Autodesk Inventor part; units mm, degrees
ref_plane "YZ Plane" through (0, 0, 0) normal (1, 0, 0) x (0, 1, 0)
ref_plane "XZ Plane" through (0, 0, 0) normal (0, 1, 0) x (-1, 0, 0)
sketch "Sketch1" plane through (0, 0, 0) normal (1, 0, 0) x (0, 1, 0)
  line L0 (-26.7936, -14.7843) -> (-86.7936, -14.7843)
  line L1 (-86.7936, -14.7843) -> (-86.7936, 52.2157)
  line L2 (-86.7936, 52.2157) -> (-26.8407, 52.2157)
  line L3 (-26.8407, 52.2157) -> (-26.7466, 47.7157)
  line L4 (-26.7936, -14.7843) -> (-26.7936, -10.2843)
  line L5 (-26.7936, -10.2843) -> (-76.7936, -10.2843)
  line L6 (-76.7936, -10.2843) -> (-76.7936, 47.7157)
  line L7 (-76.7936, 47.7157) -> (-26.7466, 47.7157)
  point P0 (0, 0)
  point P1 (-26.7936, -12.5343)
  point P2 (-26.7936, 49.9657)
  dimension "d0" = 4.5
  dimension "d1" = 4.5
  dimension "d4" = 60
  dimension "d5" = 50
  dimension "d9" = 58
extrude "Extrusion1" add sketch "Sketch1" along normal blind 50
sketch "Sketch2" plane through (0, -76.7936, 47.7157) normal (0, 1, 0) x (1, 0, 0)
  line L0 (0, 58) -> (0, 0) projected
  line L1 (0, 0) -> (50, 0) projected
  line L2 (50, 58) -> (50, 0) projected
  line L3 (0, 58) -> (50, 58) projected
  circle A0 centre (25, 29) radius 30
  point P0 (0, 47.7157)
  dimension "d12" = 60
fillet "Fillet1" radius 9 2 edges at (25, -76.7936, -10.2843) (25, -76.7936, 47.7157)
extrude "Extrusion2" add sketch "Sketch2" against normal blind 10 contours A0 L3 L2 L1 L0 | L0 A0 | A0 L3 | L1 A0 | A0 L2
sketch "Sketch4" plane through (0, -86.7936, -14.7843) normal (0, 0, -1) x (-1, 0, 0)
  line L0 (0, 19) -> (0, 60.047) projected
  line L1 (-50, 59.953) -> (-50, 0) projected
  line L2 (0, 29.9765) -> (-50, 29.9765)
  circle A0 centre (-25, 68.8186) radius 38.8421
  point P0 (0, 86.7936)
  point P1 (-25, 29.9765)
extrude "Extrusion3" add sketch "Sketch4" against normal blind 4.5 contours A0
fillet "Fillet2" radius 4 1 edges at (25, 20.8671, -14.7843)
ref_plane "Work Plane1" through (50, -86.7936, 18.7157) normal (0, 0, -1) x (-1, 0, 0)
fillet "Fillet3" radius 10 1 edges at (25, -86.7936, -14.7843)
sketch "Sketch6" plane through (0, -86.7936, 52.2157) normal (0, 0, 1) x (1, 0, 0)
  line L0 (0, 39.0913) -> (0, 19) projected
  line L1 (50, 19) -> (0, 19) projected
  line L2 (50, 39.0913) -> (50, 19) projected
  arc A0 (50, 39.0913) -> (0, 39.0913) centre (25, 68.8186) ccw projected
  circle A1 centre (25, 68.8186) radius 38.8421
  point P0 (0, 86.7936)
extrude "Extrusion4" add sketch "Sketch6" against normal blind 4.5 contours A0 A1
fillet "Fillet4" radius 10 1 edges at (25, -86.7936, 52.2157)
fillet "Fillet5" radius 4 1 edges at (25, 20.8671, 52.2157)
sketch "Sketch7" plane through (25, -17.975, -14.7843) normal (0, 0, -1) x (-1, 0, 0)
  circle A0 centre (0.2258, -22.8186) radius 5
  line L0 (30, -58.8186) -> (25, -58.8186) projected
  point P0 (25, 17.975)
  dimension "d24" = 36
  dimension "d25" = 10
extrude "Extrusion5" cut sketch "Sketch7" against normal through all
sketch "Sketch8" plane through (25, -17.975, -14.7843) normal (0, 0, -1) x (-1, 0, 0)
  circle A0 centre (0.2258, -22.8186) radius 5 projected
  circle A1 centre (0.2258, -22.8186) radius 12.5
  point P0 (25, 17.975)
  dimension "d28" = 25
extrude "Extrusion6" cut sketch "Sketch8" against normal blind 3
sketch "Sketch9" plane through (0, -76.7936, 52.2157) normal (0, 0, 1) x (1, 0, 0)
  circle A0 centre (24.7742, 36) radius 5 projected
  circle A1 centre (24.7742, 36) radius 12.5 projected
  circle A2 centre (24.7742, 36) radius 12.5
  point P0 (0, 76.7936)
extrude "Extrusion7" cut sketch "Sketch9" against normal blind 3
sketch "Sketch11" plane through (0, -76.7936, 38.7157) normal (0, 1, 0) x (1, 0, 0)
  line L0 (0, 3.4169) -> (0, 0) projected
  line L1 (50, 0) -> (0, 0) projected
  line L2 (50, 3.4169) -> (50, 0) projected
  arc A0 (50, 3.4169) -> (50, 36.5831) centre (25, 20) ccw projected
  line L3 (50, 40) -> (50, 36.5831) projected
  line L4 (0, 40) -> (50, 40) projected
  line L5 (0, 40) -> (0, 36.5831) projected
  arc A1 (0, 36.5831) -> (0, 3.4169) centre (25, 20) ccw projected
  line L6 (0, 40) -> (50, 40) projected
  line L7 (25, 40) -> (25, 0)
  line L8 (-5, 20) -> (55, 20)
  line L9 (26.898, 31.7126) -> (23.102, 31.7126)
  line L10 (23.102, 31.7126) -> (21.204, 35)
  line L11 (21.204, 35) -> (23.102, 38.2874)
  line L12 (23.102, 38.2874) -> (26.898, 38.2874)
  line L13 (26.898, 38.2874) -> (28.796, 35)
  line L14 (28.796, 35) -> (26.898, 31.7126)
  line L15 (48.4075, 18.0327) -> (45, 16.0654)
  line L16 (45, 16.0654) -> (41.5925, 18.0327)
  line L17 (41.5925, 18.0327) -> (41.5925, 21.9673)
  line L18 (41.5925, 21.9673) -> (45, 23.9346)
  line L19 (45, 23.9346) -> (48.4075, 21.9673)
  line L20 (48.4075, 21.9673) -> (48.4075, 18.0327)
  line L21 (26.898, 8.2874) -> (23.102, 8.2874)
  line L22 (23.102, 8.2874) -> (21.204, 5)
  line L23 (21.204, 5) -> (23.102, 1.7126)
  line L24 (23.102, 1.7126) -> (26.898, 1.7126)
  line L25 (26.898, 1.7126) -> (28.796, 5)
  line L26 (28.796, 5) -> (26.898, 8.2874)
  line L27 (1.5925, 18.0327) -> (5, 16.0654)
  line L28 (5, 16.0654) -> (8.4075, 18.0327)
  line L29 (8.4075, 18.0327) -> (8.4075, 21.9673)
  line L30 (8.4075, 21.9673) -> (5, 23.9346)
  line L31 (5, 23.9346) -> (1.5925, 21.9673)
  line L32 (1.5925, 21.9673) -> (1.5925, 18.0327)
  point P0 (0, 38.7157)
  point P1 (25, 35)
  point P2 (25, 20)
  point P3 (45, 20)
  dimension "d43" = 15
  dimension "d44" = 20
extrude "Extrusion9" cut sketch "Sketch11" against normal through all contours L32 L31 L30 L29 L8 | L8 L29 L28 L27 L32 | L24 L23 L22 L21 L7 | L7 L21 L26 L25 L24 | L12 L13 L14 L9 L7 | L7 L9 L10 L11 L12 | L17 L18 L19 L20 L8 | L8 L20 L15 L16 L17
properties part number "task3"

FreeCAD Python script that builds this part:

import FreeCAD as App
import Part
import Sketcher

V = App.Vector
Q = App.Units.Quantity


def edges_at(feature, points):
    """Names of the edges that pass closest to the given points."""
    edges = feature.Shape.Edges
    near = lambda p: min(range(len(edges)), key=lambda i: edges[i].distToShape(Part.Vertex(*p))[0])
    return sorted({f"Edge{near(p) + 1}" for p in points})

doc = App.newDocument("Part")
body = doc.addObject("PartDesign::Body", "Body")

# Sketch on YZ plane
sketch1 = body.newObject("Sketcher::SketchObject", "Sketch")
sketch1.AttachmentSupport = (doc.getObject("YZ_Plane"), [""])
sketch1.MapMode = "FlatFace"
sketch1.addGeometry([
    Part.LineSegment(V(-86.8, -14.8, 0), V(-26.8, -14.8, 0)),  # 0
    Part.LineSegment(V(-26.8, -14.8, 0), V(-26.8, -10.3, 0)),  # 1
    Part.LineSegment(V(-26.8, -10.3, 0), V(-76.8, -10.3, 0)),  # 2
    Part.LineSegment(V(-76.8, -10.3, 0), V(-76.8, 47.7, 0)),  # 3
    Part.LineSegment(V(-76.8, 47.7, 0), V(-26.7, 47.7, 0)),  # 4
    Part.LineSegment(V(-26.7, 47.7, 0), V(-26.8, 52.2, 0)),  # 5
    Part.LineSegment(V(-26.8, 52.2, 0), V(-86.8, 52.2, 0)),  # 6
    Part.LineSegment(V(-86.8, 52.2, 0), V(-86.8, -14.8, 0)),  # 7
], False)
sketch1.addConstraint([
    Sketcher.Constraint("Coincident", 0, 2, 1, 1),
    Sketcher.Constraint("Coincident", 1, 2, 2, 1),
    Sketcher.Constraint("Coincident", 2, 2, 3, 1),
    Sketcher.Constraint("Coincident", 3, 2, 4, 1),
    Sketcher.Constraint("Coincident", 4, 2, 5, 1),
    Sketcher.Constraint("Coincident", 5, 2, 6, 1),
    Sketcher.Constraint("Coincident", 6, 2, 7, 1),
    Sketcher.Constraint("Coincident", 7, 2, 0, 1),
    Sketcher.Constraint("Horizontal", 0),
    Sketcher.Constraint("Vertical", 1),
    Sketcher.Constraint("Horizontal", 2),
    Sketcher.Constraint("Vertical", 3),
    Sketcher.Constraint("Horizontal", 4),
    Sketcher.Constraint("Horizontal", 6),
    Sketcher.Constraint("Vertical", 7),
    Sketcher.Constraint("DistanceX", 0, 1, 0, 2, 60.0),
    Sketcher.Constraint("DistanceX", 2, 2, 2, 1, 50.0),
    Sketcher.Constraint("DistanceY", 3, 1, 3, 2, 58.0),
    Sketcher.Constraint("DistanceY", 1, 1, 1, 2, 4.5),
    Sketcher.Constraint("DistanceY", 4, 2, 5, 2, 4.5),
    Sketcher.Constraint("DistanceX", 4, 1, 4, 2, 50.047),
    Sketcher.Constraint("DistanceX", 6, 2, 6, 1, 59.953),
    Sketcher.Constraint("DistanceX", 0, 2, -1, 1, 26.7936),
    Sketcher.Constraint("DistanceY", 0, 2, -1, 1, 14.7843),
])
pad1 = body.newObject("PartDesign::Pad", "Pad")
pad1.Profile = sketch1
pad1.Length = 50
doc.recompute()

fillet = body.newObject("PartDesign::Fillet", "Fillet")
fillet.Base = (pad1, edges_at(pad1, [(25, -76.794, -10.284), (25, -76.794, 47.716)]))
fillet.Radius = 9

# Sketch on XZ plane
sketch2 = body.newObject("Sketcher::SketchObject", "Sketch001")
sketch2.AttachmentSupport = (doc.getObject("XZ_Plane"), [""])
sketch2.MapMode = "FlatFace"
sketch2.AttachmentOffset = App.Placement(V(0, 0, 76.7936), App.Rotation())
sketch2.addGeometry(Part.Circle(V(25, 19, 0), V(0, 0, 1), 30), False)
sketch2.addConstraint([
    Sketcher.Constraint("Diameter", 0, 60.0),
    Sketcher.Constraint("DistanceX", -1, 1, 0, 3, 25.0),
    Sketcher.Constraint("DistanceY", -1, 1, 0, 3, 18.7157),
])
pad2 = body.newObject("PartDesign::Pad", "Pad001")
pad2.Profile = sketch2
pad2.Length = 10

# Sketch on XY plane
sketch3 = body.newObject("Sketcher::SketchObject", "Sketch002")
sketch3.AttachmentSupport = (doc.getObject("XY_Plane"), [""])
sketch3.MapMode = "FlatFace"
sketch3.AttachmentOffset = App.Placement(V(0, 0, -14.7843), App.Rotation())
sketch3.addGeometry(Part.Circle(V(25, -18, 0), V(0, 0, 1), 39), False)
sketch3.addConstraint([
    Sketcher.Constraint("DistanceX", -1, 1, 0, 3, 25.0),
    Sketcher.Constraint("Diameter", 0, 77.6842),
    Sketcher.Constraint("DistanceY", 0, 3, -1, 1, 17.975),
])
pad3 = body.newObject("PartDesign::Pad", "Pad002")
pad3.Profile = sketch3
pad3.Length = 4.5
doc.recompute()

fillet2 = body.newObject("PartDesign::Fillet", "Fillet001")
fillet2.Base = (pad3, edges_at(pad3, [(25, 20.867, -14.784)]))
fillet2.Radius = 4
doc.recompute()

fillet3 = body.newObject("PartDesign::Fillet", "Fillet002")
fillet3.Base = (fillet2, edges_at(fillet2, [(25, -86.794, -14.784)]))
fillet3.Radius = 10

# Sketch on XY plane
sketch4 = body.newObject("Sketcher::SketchObject", "Sketch003")
sketch4.AttachmentSupport = (doc.getObject("XY_Plane"), [""])
sketch4.MapMode = "FlatFace"
sketch4.AttachmentOffset = App.Placement(V(0, 0, 52.2157), App.Rotation())
sketch4.addGeometry(Part.Circle(V(25, -18, 0), V(0, 0, 1), 39), False)
sketch4.addConstraint([
    Sketcher.Constraint("DistanceX", -1, 1, 0, 3, 25.0),
    Sketcher.Constraint("Diameter", 0, 77.6842),
    Sketcher.Constraint("DistanceY", 0, 3, -1, 1, 17.975),
])
pad4 = body.newObject("PartDesign::Pad", "Pad003")
pad4.Profile = sketch4
pad4.Length = 4.5
pad4.Reversed = True
doc.recompute()

fillet4 = body.newObject("PartDesign::Fillet", "Fillet003")
fillet4.Base = (pad4, edges_at(pad4, [(25, -86.794, 52.216)]))
fillet4.Radius = 10
doc.recompute()

fillet5 = body.newObject("PartDesign::Fillet", "Fillet004")
fillet5.Base = (fillet4, edges_at(fillet4, [(25, 20.867, 52.216)]))
fillet5.Radius = 4

# Sketch on XY plane
sketch5 = body.newObject("Sketcher::SketchObject", "Sketch004")
sketch5.AttachmentSupport = (doc.getObject("XY_Plane"), [""])
sketch5.MapMode = "FlatFace"
sketch5.AttachmentOffset = App.Placement(V(0, 0, -14.7843), App.Rotation())
sketch5.addGeometry(Part.Circle(V(25, -41, 0), V(0, 0, 1), 5), False)
sketch5.addConstraint([
    Sketcher.Constraint("Diameter", 0, 10.0),
    Sketcher.Constraint("DistanceX", -1, 1, 0, 3, 24.7742),
    Sketcher.Constraint("DistanceY", 0, 3, -1, 1, 40.7936),
])
pocket1 = body.newObject("PartDesign::Pocket", "Pocket")
pocket1.Profile = sketch5
pocket1.Type = "ThroughAll"
pocket1.Reversed = True

# Sketch on XY plane
sketch6 = body.newObject("Sketcher::SketchObject", "Sketch005")
sketch6.AttachmentSupport = (doc.getObject("XY_Plane"), [""])
sketch6.MapMode = "FlatFace"
sketch6.AttachmentOffset = App.Placement(V(0, 0, -14.7843), App.Rotation())
sketch6.addGeometry([
    Part.Circle(V(25, -41, 0), V(0, 0, 1), 12),
    Part.Circle(V(25, -41, 0), V(0, 0, 1), 5),
], False)
sketch6.addConstraint([
    Sketcher.Constraint("Coincident", 1, 3, 0, 3),
    Sketcher.Constraint("Diameter", 0, 25.0),
    Sketcher.Constraint("Diameter", 1, 10.0),
    Sketcher.Constraint("DistanceX", -1, 1, 0, 3, 24.7742),
    Sketcher.Constraint("DistanceY", 0, 3, -1, 1, 40.7936),
])
pocket2 = body.newObject("PartDesign::Pocket", "Pocket001")
pocket2.Profile = sketch6
pocket2.Length = 3
pocket2.Reversed = True

# Sketch on XY plane
sketch7 = body.newObject("Sketcher::SketchObject", "Sketch006")
sketch7.AttachmentSupport = (doc.getObject("XY_Plane"), [""])
sketch7.MapMode = "FlatFace"
sketch7.AttachmentOffset = App.Placement(V(0, 0, 52.2157), App.Rotation())
sketch7.addGeometry([
    Part.Circle(V(25, -41, 0), V(0, 0, 1), 12),
    Part.Circle(V(25, -41, 0), V(0, 0, 1), 5),
], False)
sketch7.addConstraint([
    Sketcher.Constraint("Coincident", 1, 3, 0, 3),
    Sketcher.Constraint("Diameter", 0, 25.0),
    Sketcher.Constraint("Diameter", 1, 10.0),
    Sketcher.Constraint("DistanceX", -1, 1, 0, 3, 24.7742),
    Sketcher.Constraint("DistanceY", 0, 3, -1, 1, 40.7936),
])
pocket3 = body.newObject("PartDesign::Pocket", "Pocket002")
pocket3.Profile = sketch7
pocket3.Length = 3

# Sketch on XZ plane
sketch8 = body.newObject("Sketcher::SketchObject", "Sketch007")
sketch8.AttachmentSupport = (doc.getObject("XZ_Plane"), [""])
sketch8.MapMode = "FlatFace"
sketch8.AttachmentOffset = App.Placement(V(0, 0, 76.7936), App.Rotation())
sketch8.addGeometry([
    Part.LineSegment(V(1.6, 16.7, 0), V(1.6, 20.7, 0)),  # 0
    Part.LineSegment(V(1.6, 20.7, 0), V(5, 22.7, 0)),  # 1
    Part.LineSegment(V(5, 22.7, 0), V(8.4, 20.7, 0)),  # 2
    Part.LineSegment(V(8.4, 20.7, 0), V(8.4, 16.7, 0)),  # 3
    Part.LineSegment(V(8.4, 16.7, 0), V(5, 14.8, 0)),  # 4
    Part.LineSegment(V(5, 14.8, 0), V(1.6, 16.7, 0)),  # 5
    Part.LineSegment(V(23.1, 37, 0), V(26.9, 37, 0)),  # 6
    Part.LineSegment(V(26.9, 37, 0), V(28.8, 33.7, 0)),  # 7
    Part.LineSegment(V(28.8, 33.7, 0), V(26.9, 30.4, 0)),  # 8
    Part.LineSegment(V(26.9, 30.4, 0), V(23.1, 30.4, 0)),  # 9
    Part.LineSegment(V(23.1, 30.4, 0), V(21.2, 33.7, 0)),  # 10
    Part.LineSegment(V(21.2, 33.7, 0), V(23.1, 37, 0)),  # 11
    Part.LineSegment(V(26.9, 0.4, 0), V(23.1, 0.4, 0)),  # 12
    Part.LineSegment(V(23.1, 0.4, 0), V(21.2, 3.7, 0)),  # 13
    Part.LineSegment(V(21.2, 3.7, 0), V(23.1, 7, 0)),  # 14
    Part.LineSegment(V(23.1, 7, 0), V(26.9, 7, 0)),  # 15
    Part.LineSegment(V(26.9, 7, 0), V(28.8, 3.7, 0)),  # 16
    Part.LineSegment(V(28.8, 3.7, 0), V(26.9, 0.4, 0)),  # 17
    Part.LineSegment(V(41.6, 16.7, 0), V(41.6, 20.7, 0)),  # 18
    Part.LineSegment(V(41.6, 20.7, 0), V(45, 22.7, 0)),  # 19
    Part.LineSegment(V(45, 22.7, 0), V(48.4, 20.7, 0)),  # 20
    Part.LineSegment(V(48.4, 20.7, 0), V(48.4, 16.7, 0)),  # 21
    Part.LineSegment(V(48.4, 16.7, 0), V(45, 14.8, 0)),  # 22
    Part.LineSegment(V(45, 14.8, 0), V(41.6, 16.7, 0)),  # 23
], False)
sketch8.addConstraint([
    Sketcher.Constraint("Coincident", 0, 2, 1, 1),
    Sketcher.Constraint("Coincident", 1, 2, 2, 1),
    Sketcher.Constraint("Coincident", 2, 2, 3, 1),
    Sketcher.Constraint("Coincident", 3, 2, 4, 1),
    Sketcher.Constraint("Coincident", 4, 2, 5, 1),
    Sketcher.Constraint("Coincident", 5, 2, 0, 1),
    Sketcher.Constraint("Coincident", 6, 2, 7, 1),
    Sketcher.Constraint("Coincident", 7, 2, 8, 1),
    Sketcher.Constraint("Coincident", 8, 2, 9, 1),
    Sketcher.Constraint("Coincident", 9, 2, 10, 1),
    Sketcher.Constraint("Coincident", 10, 2, 11, 1),
    Sketcher.Constraint("Coincident", 11, 2, 6, 1),
    Sketcher.Constraint("Coincident", 12, 2, 13, 1),
    Sketcher.Constraint("Coincident", 13, 2, 14, 1),
    Sketcher.Constraint("Coincident", 14, 2, 15, 1),
    Sketcher.Constraint("Coincident", 15, 2, 16, 1),
    Sketcher.Constraint("Coincident", 16, 2, 17, 1),
    Sketcher.Constraint("Coincident", 17, 2, 12, 1),
    Sketcher.Constraint("Coincident", 18, 2, 19, 1),
    Sketcher.Constraint("Coincident", 19, 2, 20, 1),
    Sketcher.Constraint("Coincident", 20, 2, 21, 1),
    Sketcher.Constraint("Coincident", 21, 2, 22, 1),
    Sketcher.Constraint("Coincident", 22, 2, 23, 1),
    Sketcher.Constraint("Coincident", 23, 2, 18, 1),
    Sketcher.Constraint("Vertical", 0),
    Sketcher.Constraint("Vertical", 3),
    Sketcher.Constraint("Horizontal", 6),
    Sketcher.Constraint("Horizontal", 9),
    Sketcher.Constraint("Horizontal", 12),
    Sketcher.Constraint("Horizontal", 15),
    Sketcher.Constraint("Vertical", 18),
    Sketcher.Constraint("Vertical", 21),
    Sketcher.Constraint("Parallel", 1, 4),
    Sketcher.Constraint("Parallel", 2, 5),
    Sketcher.Constraint("Perpendicular", 4, 7),
    Sketcher.Constraint("Perpendicular", 5, 8),
    Sketcher.Constraint("Parallel", 7, 10),
    Sketcher.Constraint("Parallel", 8, 11),
    Sketcher.Constraint("Parallel", 10, 13),
    Sketcher.Constraint("Parallel", 11, 14),
    Sketcher.Constraint("Parallel", 13, 16),
    Sketcher.Constraint("Parallel", 14, 17),
    Sketcher.Constraint("Perpendicular", 16, 19),
    Sketcher.Constraint("Perpendicular", 17, 20),
    Sketcher.Constraint("Parallel", 19, 22),
    Sketcher.Constraint("Parallel", 20, 23),
    Sketcher.Constraint("Horizontal", 0, 2, 2, 2),
    Sketcher.Constraint("Horizontal", 3, 2, 5, 2),
    Sketcher.Constraint("Horizontal", 7, 2, 10, 2),
    Sketcher.Constraint("Horizontal", 13, 2, 16, 2),
    Sketcher.Constraint("Horizontal", 2, 2, 18, 2),
    Sketcher.Constraint("Horizontal", 1, 2, 19, 2),
    Sketcher.Constraint("Horizontal", 18, 2, 20, 2),
    Sketcher.Constraint("Horizontal", 5, 2, 21, 2),
    Sketcher.Constraint("Horizontal", 4, 2, 22, 2),
    Sketcher.Constraint("Vertical", 1, 2, 4, 2),
    Sketcher.Constraint("Vertical", 6, 2, 8, 2),
    Sketcher.Constraint("Vertical", 11, 2, 12, 2),
    Sketcher.Constraint("Vertical", 10, 2, 13, 2),
    Sketcher.Constraint("Vertical", 12, 2, 14, 2),
    Sketcher.Constraint("Vertical", 8, 2, 15, 2),
    Sketcher.Constraint("Angle", 1, Q("29.9997 deg")),
    Sketcher.Constraint("DistanceX", -1, 1, 1, 2, 5.0),
    Sketcher.Constraint("DistanceX", -1, 1, 19, 2, 45.0),
    Sketcher.Constraint("DistanceX", 6, 1, 6, 2, 3.796),
    Sketcher.Constraint("DistanceY", 2, 2, 6, 2, 16.32),
    Sketcher.Constraint("DistanceY", 3, 2, 8, 2, 13.68),
    Sketcher.Constraint("DistanceY", 12, 2, 3, 2, 16.32),
    Sketcher.Constraint("Distance", 7, 3.796),
    Sketcher.Constraint("DistanceY", -1, 1, 0, 2, 20.683),
    Sketcher.Constraint("DistanceY", -1, 1, 4, 2, 14.781),
    Sketcher.Constraint("DistanceX", -1, 1, 6, 2, 26.898),
])
pocket4 = body.newObject("PartDesign::Pocket", "Pocket003")
pocket4.Profile = sketch8
pocket4.Type = "ThroughAll"
pocket4.Reversed = True

doc.recompute()
